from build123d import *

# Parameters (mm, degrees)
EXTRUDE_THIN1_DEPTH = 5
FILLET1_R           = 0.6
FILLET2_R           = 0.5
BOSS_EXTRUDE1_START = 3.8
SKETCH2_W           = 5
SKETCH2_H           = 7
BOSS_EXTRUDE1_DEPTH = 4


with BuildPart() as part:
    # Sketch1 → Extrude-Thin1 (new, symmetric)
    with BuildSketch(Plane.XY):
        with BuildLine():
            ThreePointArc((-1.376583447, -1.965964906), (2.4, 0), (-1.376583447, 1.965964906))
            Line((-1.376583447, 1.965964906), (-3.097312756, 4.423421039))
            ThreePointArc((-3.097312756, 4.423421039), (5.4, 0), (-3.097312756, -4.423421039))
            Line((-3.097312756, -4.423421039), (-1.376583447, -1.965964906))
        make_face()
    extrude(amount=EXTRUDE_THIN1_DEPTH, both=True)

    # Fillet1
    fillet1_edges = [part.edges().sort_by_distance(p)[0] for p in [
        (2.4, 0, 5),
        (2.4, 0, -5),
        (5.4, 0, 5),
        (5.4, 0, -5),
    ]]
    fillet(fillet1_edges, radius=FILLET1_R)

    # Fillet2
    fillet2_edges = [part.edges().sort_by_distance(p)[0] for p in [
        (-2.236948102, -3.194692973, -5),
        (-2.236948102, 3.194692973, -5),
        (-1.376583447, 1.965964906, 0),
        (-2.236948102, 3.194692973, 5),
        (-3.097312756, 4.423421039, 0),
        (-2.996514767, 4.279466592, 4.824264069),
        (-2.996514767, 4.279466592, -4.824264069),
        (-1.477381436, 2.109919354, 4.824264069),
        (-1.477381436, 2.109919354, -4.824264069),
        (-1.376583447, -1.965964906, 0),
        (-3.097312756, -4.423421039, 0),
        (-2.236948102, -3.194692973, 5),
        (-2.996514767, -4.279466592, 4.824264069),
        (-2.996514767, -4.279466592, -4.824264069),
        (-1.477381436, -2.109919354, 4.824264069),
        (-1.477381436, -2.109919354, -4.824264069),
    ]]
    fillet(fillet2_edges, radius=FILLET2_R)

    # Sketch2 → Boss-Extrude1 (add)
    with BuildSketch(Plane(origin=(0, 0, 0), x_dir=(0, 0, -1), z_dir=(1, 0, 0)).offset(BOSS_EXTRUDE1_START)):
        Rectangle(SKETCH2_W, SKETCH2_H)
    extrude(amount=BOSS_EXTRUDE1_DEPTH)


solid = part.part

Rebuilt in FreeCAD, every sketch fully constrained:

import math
import FreeCAD as App
import Part
import Sketcher
from FreeCAD import Vector
Q = App.Units.Quantity


def edges_at(feature, points):
    """Names of the edges that pass closest to the given points."""
    edges = feature.Shape.Edges
    near = lambda p: min(range(len(edges)), key=lambda i: edges[i].distToShape(Part.Vertex(*p))[0])
    return sorted({f"Edge{near(p) + 1}" for p in points})


def add_polygon(sketch, points):
    """Adds a closed chain of lines whose ends are joined by coincident constraints."""
    first, n = sketch.GeometryCount, len(points)
    for a, b in zip(points, points[1:] + points[:1]):
        sketch.addGeometry(Part.LineSegment(App.Vector(*a, 0), App.Vector(*b, 0)), False)
    for i in range(n):
        sketch.addConstraint(Sketcher.Constraint("Coincident", first + i, 2, first + (i + 1) % n, 1))

doc = App.newDocument("Part")
body = doc.addObject("PartDesign::Body", "Body")

# Sketch on XY plane
sketch1 = body.newObject("Sketcher::SketchObject", "Sketch")
sketch1.AttachmentSupport = (doc.getObject("XY_Plane"), [""])
sketch1.MapMode = "FlatFace"
sketch1.addGeometry(Part.ArcOfCircle(Part.Circle(Vector(0, 0, 0), Vector(0, 0, 1), 2.4), math.radians(-125), math.radians(125)), False)
sketch1.addGeometry(Part.LineSegment(Vector(-1.4, -2, 0), Vector(-3.1, -4.4, 0)), False)
sketch1.addGeometry(Part.ArcOfCircle(Part.Circle(Vector(0, 0, 0), Vector(0, 0, 1), 5.4), math.radians(-125), math.radians(125)), False)
sketch1.addGeometry(Part.LineSegment(Vector(-3.1, 4.4, 0), Vector(-1.4, 2, 0)), False)
sketch1.addConstraint(Sketcher.Constraint("Coincident", 0, 1, 1, 1))
sketch1.addConstraint(Sketcher.Constraint("Coincident", 1, 2, 2, 1))
sketch1.addConstraint(Sketcher.Constraint("Coincident", 2, 2, 3, 1))
sketch1.addConstraint(Sketcher.Constraint("Coincident", 3, 2, 0, 2))
sketch1.addConstraint(Sketcher.Constraint("Coincident", 0, 3, -1, 1))
sketch1.addConstraint(Sketcher.Constraint("Coincident", 2, 3, -1, 1))
sketch1.addConstraint(Sketcher.Constraint("Vertical", 1, 2, 2, 2))
sketch1.addConstraint(Sketcher.Constraint("Vertical", 0, 1, 3, 2))
sketch1.addConstraint(Sketcher.Constraint("Radius", 0, 2.4))
sketch1.addConstraint(Sketcher.Constraint("Radius", 2, 5.4))
sketch1.addConstraint(Sketcher.Constraint("Angle", 1, Q("-125 deg")))
sketch1.addConstraint(Sketcher.Constraint("DistanceY", 1, 2, -1, 1, 4.423421))
pad1 = body.newObject("PartDesign::Pad", "Pad")
pad1.Profile = sketch1
pad1.Length = 10
pad1.Midplane = True
doc.recompute()

fillet = body.newObject("PartDesign::Fillet", "Fillet")
fillet.Base = (pad1, edges_at(pad1, [
    (2.4, 0, 5),
    (2.4, 0, -5),
    (5.4, 0, 5),
    (5.4, 0, -5),
]))
fillet.Radius = 0.6
doc.recompute()

fillet2 = body.newObject("PartDesign::Fillet", "Fillet001")
fillet2.Base = (fillet, edges_at(fillet, [
    (-2.237, -3.195, -5),
    (-2.237, 3.195, -5),
    (-1.377, 1.966, 0),
    (-2.237, 3.195, 5),
    (-3.097, 4.423, 0),
    (-2.997, 4.279, 4.824),
    (-2.997, 4.279, -4.824),
    (-1.477, 2.11, 4.824),
    (-1.477, 2.11, -4.824),
    (-1.377, -1.966, 0),
    (-3.097, -4.423, 0),
    (-2.237, -3.195, 5),
    (-2.997, -4.279, 4.824),
    (-2.997, -4.279, -4.824),
    (-1.477, -2.11, 4.824),
    (-1.477, -2.11, -4.824),
]))
fillet2.Radius = 0.5

# Sketch on YZ plane
sketch2 = body.newObject("Sketcher::SketchObject", "Sketch001")
sketch2.AttachmentSupport = (doc.getObject("YZ_Plane"), [""])
sketch2.MapMode = "FlatFace"
sketch2.AttachmentOffset = App.Placement(Vector(0, 0, 3.8), App.Rotation())
add_polygon(sketch2, [(4, 2), (-4, 2), (-4, -2), (4, -2)])  # lines 0-3
sketch2.addConstraint(Sketcher.Constraint("Horizontal", 0))
sketch2.addConstraint(Sketcher.Constraint("Vertical", 1))
sketch2.addConstraint(Sketcher.Constraint("Horizontal", 2))
sketch2.addConstraint(Sketcher.Constraint("Vertical", 3))
sketch2.addConstraint(Sketcher.Constraint("Symmetric", 0, 2, 2, 2, -1, 1))
sketch2.addConstraint(Sketcher.Constraint("DistanceX", 0, 2, 0, 1, 7.0))
sketch2.addConstraint(Sketcher.Constraint("DistanceY", 1, 2, 1, 1, 5.0))
pad2 = body.newObject("PartDesign::Pad", "Pad001")
pad2.Profile = sketch2
pad2.Length = 4

doc.recompute()
